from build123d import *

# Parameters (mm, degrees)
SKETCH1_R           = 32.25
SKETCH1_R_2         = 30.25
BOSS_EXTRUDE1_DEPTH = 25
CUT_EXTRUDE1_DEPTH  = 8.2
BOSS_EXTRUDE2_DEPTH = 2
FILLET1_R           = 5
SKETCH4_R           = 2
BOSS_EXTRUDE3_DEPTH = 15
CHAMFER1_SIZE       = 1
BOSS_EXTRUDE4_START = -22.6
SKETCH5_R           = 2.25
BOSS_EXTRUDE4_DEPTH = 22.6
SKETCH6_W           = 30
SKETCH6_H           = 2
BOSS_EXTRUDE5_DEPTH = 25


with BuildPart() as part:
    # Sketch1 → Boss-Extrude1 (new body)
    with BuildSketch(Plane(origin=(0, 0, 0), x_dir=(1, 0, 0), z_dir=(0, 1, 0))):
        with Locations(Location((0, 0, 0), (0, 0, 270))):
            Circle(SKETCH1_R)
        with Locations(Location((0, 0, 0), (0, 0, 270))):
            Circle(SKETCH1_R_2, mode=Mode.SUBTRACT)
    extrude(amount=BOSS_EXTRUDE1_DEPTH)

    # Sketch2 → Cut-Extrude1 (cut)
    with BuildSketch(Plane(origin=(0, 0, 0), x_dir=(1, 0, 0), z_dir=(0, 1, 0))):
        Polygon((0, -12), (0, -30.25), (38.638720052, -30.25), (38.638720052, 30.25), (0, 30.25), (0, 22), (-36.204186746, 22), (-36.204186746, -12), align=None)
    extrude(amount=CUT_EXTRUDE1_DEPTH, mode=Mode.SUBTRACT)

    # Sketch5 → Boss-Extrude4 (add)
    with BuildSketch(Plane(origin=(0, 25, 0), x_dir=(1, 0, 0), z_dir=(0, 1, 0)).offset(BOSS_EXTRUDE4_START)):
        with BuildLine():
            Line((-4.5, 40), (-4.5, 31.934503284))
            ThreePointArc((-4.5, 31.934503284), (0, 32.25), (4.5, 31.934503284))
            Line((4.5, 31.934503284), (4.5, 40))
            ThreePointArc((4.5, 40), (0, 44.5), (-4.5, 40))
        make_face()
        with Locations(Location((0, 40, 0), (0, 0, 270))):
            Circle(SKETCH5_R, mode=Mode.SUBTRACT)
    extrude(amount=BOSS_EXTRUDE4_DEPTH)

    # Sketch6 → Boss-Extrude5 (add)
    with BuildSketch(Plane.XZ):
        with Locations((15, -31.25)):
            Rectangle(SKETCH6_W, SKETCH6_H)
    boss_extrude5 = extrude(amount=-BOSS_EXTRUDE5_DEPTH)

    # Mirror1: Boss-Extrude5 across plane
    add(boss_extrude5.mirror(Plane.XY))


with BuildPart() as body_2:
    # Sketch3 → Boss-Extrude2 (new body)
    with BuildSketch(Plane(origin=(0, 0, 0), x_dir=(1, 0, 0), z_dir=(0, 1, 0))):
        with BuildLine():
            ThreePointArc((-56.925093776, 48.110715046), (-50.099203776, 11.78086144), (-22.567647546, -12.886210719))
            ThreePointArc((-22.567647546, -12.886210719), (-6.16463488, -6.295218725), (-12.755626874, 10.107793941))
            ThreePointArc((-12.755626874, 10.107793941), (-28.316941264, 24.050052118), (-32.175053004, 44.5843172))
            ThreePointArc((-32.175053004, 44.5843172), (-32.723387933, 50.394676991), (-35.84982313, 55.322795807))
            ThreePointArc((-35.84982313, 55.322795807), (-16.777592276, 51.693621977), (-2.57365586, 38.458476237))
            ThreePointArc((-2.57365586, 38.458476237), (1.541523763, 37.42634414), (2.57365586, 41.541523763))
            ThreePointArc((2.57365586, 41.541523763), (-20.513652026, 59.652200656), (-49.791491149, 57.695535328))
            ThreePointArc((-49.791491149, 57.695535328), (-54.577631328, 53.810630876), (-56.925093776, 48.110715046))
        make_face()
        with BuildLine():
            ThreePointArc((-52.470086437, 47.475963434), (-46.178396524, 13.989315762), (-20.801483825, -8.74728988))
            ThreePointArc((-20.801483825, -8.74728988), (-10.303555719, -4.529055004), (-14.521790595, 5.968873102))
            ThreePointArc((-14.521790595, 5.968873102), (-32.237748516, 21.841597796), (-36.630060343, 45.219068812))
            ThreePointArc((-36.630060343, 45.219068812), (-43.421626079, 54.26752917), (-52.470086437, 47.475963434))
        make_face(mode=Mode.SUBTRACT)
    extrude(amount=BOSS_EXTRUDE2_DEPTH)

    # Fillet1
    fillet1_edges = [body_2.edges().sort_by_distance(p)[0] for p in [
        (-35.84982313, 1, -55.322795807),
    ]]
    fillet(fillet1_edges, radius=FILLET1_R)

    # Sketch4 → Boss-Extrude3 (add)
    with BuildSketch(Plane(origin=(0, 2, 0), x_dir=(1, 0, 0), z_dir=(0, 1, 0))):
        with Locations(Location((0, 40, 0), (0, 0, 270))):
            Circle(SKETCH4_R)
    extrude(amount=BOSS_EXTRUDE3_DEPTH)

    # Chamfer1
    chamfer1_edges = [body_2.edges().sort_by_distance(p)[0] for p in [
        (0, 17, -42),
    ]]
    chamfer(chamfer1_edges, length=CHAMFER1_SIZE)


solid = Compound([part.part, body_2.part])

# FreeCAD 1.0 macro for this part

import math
import FreeCAD as App
import Part
import Sketcher
from FreeCAD import Vector


def edges_at(feature, points):
    """Names of the edges that pass closest to the given points."""
    edges = feature.Shape.Edges
    near = lambda p: min(range(len(edges)), key=lambda i: edges[i].distToShape(Part.Vertex(*p))[0])
    return sorted({f"Edge{near(p) + 1}" for p in points})


def add_polygon(sketch, points):
    """Adds a closed chain of lines whose ends are joined by coincident constraints."""
    first, n = sketch.GeometryCount, len(points)
    for a, b in zip(points, points[1:] + points[:1]):
        sketch.addGeometry(Part.LineSegment(App.Vector(*a, 0), App.Vector(*b, 0)), False)
    for i in range(n):
        sketch.addConstraint(Sketcher.Constraint("Coincident", first + i, 2, first + (i + 1) % n, 1))

doc = App.newDocument("Part")
params = doc.addObject("Spreadsheet::Sheet", "Params")
for row, (alias, value) in enumerate([
    ("sketch1_diameter", "64.5 mm"),
    ("sketch1_diameter2", "60.5 mm"),
    ("pad1_length", "25 mm"),
    ("sketch2_height", "34 mm"),
    ("sketch2_height2", "60.5 mm"),
    ("pocket1_length", "8.2 mm"),
    ("sketch3_diameter", "4.5 mm"),
    ("sketch3_radius", "4.5 mm"),
    ("sketch3_radius2", "32.25 mm"),
    ("pad2_length", "22.6 mm"),
    ("sketch4_width", "30 mm"),
    ("sketch4_height", "2 mm"),
    ("pad3_length", "25 mm"),
    ("sketch5_radius", "35 mm"),
    ("sketch5_radius2", "3 mm"),
    ("sketch5_radius3", "53 mm"),
    ("sketch5_radius4", "8 mm"),
    ("sketch5_radius5", "57.5 mm"),
    ("pad4_length", "2 mm"),
    ("fillet_radius", "5 mm"),
    ("sketch6_diameter", "4 mm"),
    ("pad5_length", "15 mm"),
    ("chamfer_size", "1 mm"),
], start=1):
    params.set(f"A{row}", alias)
    params.set(f"B{row}", "=" + value)
    params.setAlias(f"B{row}", alias)

body = doc.addObject("PartDesign::Body", "Body")

# Sketch on XZ plane
sketch1 = body.newObject("Sketcher::SketchObject", "Sketch")
sketch1.AttachmentSupport = (doc.getObject("XZ_Plane"), [""])
sketch1.MapMode = "FlatFace"
sketch1.addGeometry([
    Part.Circle(Vector(0, 0, 0), Vector(0, 0, 1), 32),
    Part.Circle(Vector(0, 0, 0), Vector(0, 0, 1), 30),
], False)
sketch1.addConstraint([
    Sketcher.Constraint("Coincident", 0, 3, -1, 1),
    Sketcher.Constraint("Coincident", 1, 3, -1, 1),
    Sketcher.Constraint("Diameter", 0, 64.5),
    Sketcher.Constraint("Diameter", 1, 60.5),
])
sketch1.setExpression("Constraints[2]", "Params.sketch1_diameter")
sketch1.setExpression("Constraints[3]", "Params.sketch1_diameter2")
pad1 = body.newObject("PartDesign::Pad", "Pad")
pad1.Profile = sketch1
pad1.setExpression("Length", "Params.pad1_length")
pad1.Reversed = True

# Sketch on XZ plane
sketch2 = body.newObject("Sketcher::SketchObject", "Sketch001")
sketch2.AttachmentSupport = (doc.getObject("XZ_Plane"), [""])
sketch2.MapMode = "FlatFace"
add_polygon(sketch2, [(0, 12), (0, 30), (39, 30), (39, -30), (0, -30), (0, -22), (-36, -22), (-36, 12)])  # lines 0-7
sketch2.addConstraint([
    Sketcher.Constraint("Vertical", 0),
    Sketcher.Constraint("Horizontal", 1),
    Sketcher.Constraint("Vertical", 2),
    Sketcher.Constraint("Horizontal", 3),
    Sketcher.Constraint("Vertical", 4),
    Sketcher.Constraint("Horizontal", 5),
    Sketcher.Constraint("Vertical", 6),
    Sketcher.Constraint("Horizontal", 7),
    Sketcher.Constraint("Symmetric", 0, 2, 3, 2, -1, 1),
    Sketcher.Constraint("PointOnObject", 0, 2, -2),
    Sketcher.Constraint("DistanceY", 6, 1, 6, 2, 34.0),
    Sketcher.Constraint("DistanceY", 2, 2, 2, 1, 60.5),
    Sketcher.Constraint("DistanceY", 4, 2, -1, 1, 22.0),
    Sketcher.Constraint("DistanceX", 1, 1, 1, 2, 38.63872),
    Sketcher.Constraint("DistanceX", 5, 2, 5, 1, 36.204187),
])
sketch2.setExpression("Constraints[18]", "Params.sketch2_height")
sketch2.setExpression("Constraints[19]", "Params.sketch2_height2")
pocket1 = body.newObject("PartDesign::Pocket", "Pocket")
pocket1.Profile = sketch2
pocket1.setExpression("Length", "Params.pocket1_length")

# Sketch on XZ plane
sketch3 = body.newObject("Sketcher::SketchObject", "Sketch002")
sketch3.AttachmentSupport = (doc.getObject("XZ_Plane"), [""])
sketch3.MapMode = "FlatFace"
sketch3.AttachmentOffset = App.Placement(Vector(0, 0, -2.4), App.Rotation())
sketch3.addGeometry([
    Part.LineSegment(Vector(-4.5, -40, 0), Vector(-4.5, -31.9, 0)),  # 0
    Part.ArcOfCircle(Part.Circle(Vector(0, 0, 0), Vector(0, 0, 1), 32.2), math.radians(-98.02), math.radians(-81.98)),  # 1
    Part.LineSegment(Vector(4.5, -31.9, 0), Vector(4.5, -40, 0)),  # 2
    Part.ArcOfCircle(Part.Circle(Vector(0, -40, 0), Vector(0, 0, 1), 4.5), math.radians(180), math.radians(360)),  # 3
    Part.Circle(Vector(0, -40, 0), Vector(0, 0, 1), 2.2),  # 4
], False)
sketch3.addConstraint([
    Sketcher.Constraint("Coincident", 0, 2, 1, 1),
    Sketcher.Constraint("Coincident", 1, 2, 2, 1),
    Sketcher.Constraint("Tangent", 2, 2, 3, 2),
    Sketcher.Constraint("Tangent", 3, 1, 0, 1),
    Sketcher.Constraint("Vertical", 0),
    Sketcher.Constraint("Vertical", 2),
    Sketcher.Constraint("Coincident", 1, 3, -1, 1),
    Sketcher.Constraint("Coincident", 4, 3, 3, 3),
    Sketcher.Constraint("PointOnObject", 3, 3, -2),
    Sketcher.Constraint("Diameter", 4, 4.5),
    Sketcher.Constraint("Radius", 3, 4.5),
    Sketcher.Constraint("Radius", 1, 32.25),
    Sketcher.Constraint("DistanceY", 3, 3, -1, 1, 40.0),
])
sketch3.setExpression("Constraints[9]", "Params.sketch3_diameter")
sketch3.setExpression("Constraints[10]", "Params.sketch3_radius")
sketch3.setExpression("Constraints[11]", "Params.sketch3_radius2")
pad2 = body.newObject("PartDesign::Pad", "Pad001")
pad2.Profile = sketch3
pad2.setExpression("Length", "Params.pad2_length")
pad2.Reversed = True

# Sketch on XZ plane
sketch4 = body.newObject("Sketcher::SketchObject", "Sketch003")
sketch4.AttachmentSupport = (doc.getObject("XZ_Plane"), [""])
sketch4.MapMode = "FlatFace"
add_polygon(sketch4, [(0, -30.2), (0, -32.2), (30, -32.2), (30, -30.2)])  # lines 0-3
sketch4.addConstraint([
    Sketcher.Constraint("Vertical", 0),
    Sketcher.Constraint("Horizontal", 1),
    Sketcher.Constraint("Vertical", 2),
    Sketcher.Constraint("Horizontal", 3),
    Sketcher.Constraint("PointOnObject", 0, 2, -2),
    Sketcher.Constraint("DistanceX", 1, 1, 1, 2, 30.0),
    Sketcher.Constraint("DistanceY", 0, 2, 0, 1, 2.0),
    Sketcher.Constraint("DistanceY", 0, 2, -1, 1, 32.25),
])
sketch4.setExpression("Constraints[9]", "Params.sketch4_width")
sketch4.setExpression("Constraints[10]", "Params.sketch4_height")
pad3 = body.newObject("PartDesign::Pad", "Pad002")
pad3.Profile = sketch4
pad3.setExpression("Length", "Params.pad3_length")
pad3.Reversed = True
doc.recompute()

mirrored = body.newObject("PartDesign::Mirrored", "Mirrored")
mirrored.Originals = [pad3]
mirrored.MirrorPlane = (doc.getObject("XY_Plane"), [""])
body.Tip = mirrored
body2 = doc.addObject("PartDesign::Body", "Body001")

# Sketch on XZ plane
sketch5 = body2.newObject("Sketcher::SketchObject", "Sketch004")
sketch5.AttachmentSupport = (doc.getObject("XZ_Plane001"), [""])
sketch5.MapMode = "FlatFace"
sketch5.addGeometry([
    Part.ArcOfCircle(Part.Circle(Vector(0, -40, 0), Vector(0, 0, 1), 57.5), math.radians(113), math.radians(188)),  # 0
    Part.ArcOfCircle(Part.Circle(Vector(-17.7, 1.4, 0), Vector(0, 0, 1), 12.5), math.radians(-67), math.radians(113)),  # 1
    Part.ArcOfCircle(Part.Circle(Vector(0, -40, 0), Vector(0, 0, 1), 32.5), math.radians(113), math.radians(188)),  # 2
    Part.ArcOfCircle(Part.Circle(Vector(-44.6, -46.3, 0), Vector(0, 0, 1), 12.5), math.radians(-46), math.radians(8)),  # 3
    Part.ArcOfCircle(Part.Circle(Vector(-32.6, -20.5, 0), Vector(0, 0, 1), 35), math.radians(-95), math.radians(-31)),  # 4
    Part.ArcOfCircle(Part.Circle(Vector(0, -40, 0), Vector(0, 0, 1), 3), math.radians(-31), math.radians(149)),  # 5
    Part.ArcOfCircle(Part.Circle(Vector(-32.6, -20.5, 0), Vector(0, 0, 1), 41), math.radians(-115), math.radians(-31)),  # 6
    Part.ArcOfCircle(Part.Circle(Vector(-44.6, -46.3, 0), Vector(0, 0, 1), 12.5), math.radians(-172), math.radians(-115)),  # 7
    Part.ArcOfCircle(Part.Circle(Vector(0, -40, 0), Vector(0, 0, 1), 53), math.radians(113), math.radians(188)),  # 8
    Part.ArcOfCircle(Part.Circle(Vector(-44.6, -46.3, 0), Vector(0, 0, 1), 8), math.radians(-172), math.radians(8)),  # 9
    Part.ArcOfCircle(Part.Circle(Vector(0, -40, 0), Vector(0, 0, 1), 37), math.radians(113), math.radians(188)),  # 10
    Part.ArcOfCircle(Part.Circle(Vector(-17.7, 1.4, 0), Vector(0, 0, 1), 8), math.radians(-67), math.radians(113)),  # 11
], False)
sketch5.addConstraint([
    Sketcher.Constraint("Tangent", 0, 1, 1, 2),
    Sketcher.Constraint("Tangent", 1, 1, 2, 1),
    Sketcher.Constraint("Tangent", 2, 2, 3, 2),
    Sketcher.Constraint("Coincident", 3, 1, 4, 1),
    Sketcher.Constraint("Tangent", 4, 2, 5, 2),
    Sketcher.Constraint("Tangent", 5, 1, 6, 2),
    Sketcher.Constraint("Tangent", 6, 1, 7, 2),
    Sketcher.Constraint("Tangent", 7, 1, 0, 2),
    Sketcher.Constraint("Tangent", 8, 2, 9, 1),
    Sketcher.Constraint("Tangent", 9, 2, 10, 2),
    Sketcher.Constraint("Tangent", 10, 1, 11, 1),
    Sketcher.Constraint("Tangent", 11, 2, 8, 1),
    Sketcher.Constraint("Coincident", 2, 3, 0, 3),
    Sketcher.Constraint("Coincident", 5, 3, 0, 3),
    Sketcher.Constraint("Coincident", 6, 3, 4, 3),
    Sketcher.Constraint("Coincident", 7, 3, 3, 3),
    Sketcher.Constraint("Coincident", 8, 3, 0, 3),
    Sketcher.Constraint("Coincident", 9, 3, 3, 3),
    Sketcher.Constraint("Coincident", 10, 3, 0, 3),
    Sketcher.Constraint("Coincident", 11, 3, 1, 3),
    Sketcher.Constraint("PointOnObject", 0, 3, -2),
    Sketcher.Constraint("Radius", 4, 35.0),
    Sketcher.Constraint("Radius", 5, 3.0),
    Sketcher.Constraint("Radius", 8, 53.0),
    Sketcher.Constraint("Radius", 9, 8.0),
    Sketcher.Constraint("Radius", 0, 57.5),
    Sketcher.Constraint("DistanceY", 0, 3, -1, 1, 40.0),
    Sketcher.Constraint("DistanceY", 9, 3, 2, 2, 1.763199),
    Sketcher.Constraint("DistanceY", -1, 1, 1, 3, 1.389208),
])
sketch5.setExpression("Constraints[21]", "Params.sketch5_radius")
sketch5.setExpression("Constraints[22]", "Params.sketch5_radius2")
sketch5.setExpression("Constraints[23]", "Params.sketch5_radius3")
sketch5.setExpression("Constraints[24]", "Params.sketch5_radius4")
sketch5.setExpression("Constraints[25]", "Params.sketch5_radius5")
pad4 = body2.newObject("PartDesign::Pad", "Pad003")
pad4.Profile = sketch5
pad4.setExpression("Length", "Params.pad4_length")
pad4.Reversed = True
doc.recompute()

fillet = body2.newObject("PartDesign::Fillet", "Fillet")
fillet.Base = (pad4, edges_at(pad4, [(-35.85, 1, -55.323)]))
fillet.setExpression("Radius", "Params.fillet_radius")

# Sketch on XZ plane
sketch6 = body2.newObject("Sketcher::SketchObject", "Sketch005")
sketch6.AttachmentSupport = (doc.getObject("XZ_Plane001"), [""])
sketch6.MapMode = "FlatFace"
sketch6.AttachmentOffset = App.Placement(Vector(0, 0, -2), App.Rotation())
sketch6.addGeometry(Part.Circle(Vector(0, -40, 0), Vector(0, 0, 1), 2), False)
sketch6.addConstraint([
    Sketcher.Constraint("PointOnObject", 0, 3, -2),
    Sketcher.Constraint("Diameter", 0, 4.0),
    Sketcher.Constraint("DistanceY", 0, 3, -1, 1, 40.0),
])
sketch6.setExpression("Constraints[1]", "Params.sketch6_diameter")
pad5 = body2.newObject("PartDesign::Pad", "Pad004")
pad5.Profile = sketch6
pad5.setExpression("Length", "Params.pad5_length")
pad5.Reversed = True
doc.recompute()

chamfer = body2.newObject("PartDesign::Chamfer", "Chamfer")
chamfer.Base = (pad5, edges_at(pad5, [(0, 17, -42)]))
chamfer.setExpression("Size", "Params.chamfer_size")

doc.recompute()
